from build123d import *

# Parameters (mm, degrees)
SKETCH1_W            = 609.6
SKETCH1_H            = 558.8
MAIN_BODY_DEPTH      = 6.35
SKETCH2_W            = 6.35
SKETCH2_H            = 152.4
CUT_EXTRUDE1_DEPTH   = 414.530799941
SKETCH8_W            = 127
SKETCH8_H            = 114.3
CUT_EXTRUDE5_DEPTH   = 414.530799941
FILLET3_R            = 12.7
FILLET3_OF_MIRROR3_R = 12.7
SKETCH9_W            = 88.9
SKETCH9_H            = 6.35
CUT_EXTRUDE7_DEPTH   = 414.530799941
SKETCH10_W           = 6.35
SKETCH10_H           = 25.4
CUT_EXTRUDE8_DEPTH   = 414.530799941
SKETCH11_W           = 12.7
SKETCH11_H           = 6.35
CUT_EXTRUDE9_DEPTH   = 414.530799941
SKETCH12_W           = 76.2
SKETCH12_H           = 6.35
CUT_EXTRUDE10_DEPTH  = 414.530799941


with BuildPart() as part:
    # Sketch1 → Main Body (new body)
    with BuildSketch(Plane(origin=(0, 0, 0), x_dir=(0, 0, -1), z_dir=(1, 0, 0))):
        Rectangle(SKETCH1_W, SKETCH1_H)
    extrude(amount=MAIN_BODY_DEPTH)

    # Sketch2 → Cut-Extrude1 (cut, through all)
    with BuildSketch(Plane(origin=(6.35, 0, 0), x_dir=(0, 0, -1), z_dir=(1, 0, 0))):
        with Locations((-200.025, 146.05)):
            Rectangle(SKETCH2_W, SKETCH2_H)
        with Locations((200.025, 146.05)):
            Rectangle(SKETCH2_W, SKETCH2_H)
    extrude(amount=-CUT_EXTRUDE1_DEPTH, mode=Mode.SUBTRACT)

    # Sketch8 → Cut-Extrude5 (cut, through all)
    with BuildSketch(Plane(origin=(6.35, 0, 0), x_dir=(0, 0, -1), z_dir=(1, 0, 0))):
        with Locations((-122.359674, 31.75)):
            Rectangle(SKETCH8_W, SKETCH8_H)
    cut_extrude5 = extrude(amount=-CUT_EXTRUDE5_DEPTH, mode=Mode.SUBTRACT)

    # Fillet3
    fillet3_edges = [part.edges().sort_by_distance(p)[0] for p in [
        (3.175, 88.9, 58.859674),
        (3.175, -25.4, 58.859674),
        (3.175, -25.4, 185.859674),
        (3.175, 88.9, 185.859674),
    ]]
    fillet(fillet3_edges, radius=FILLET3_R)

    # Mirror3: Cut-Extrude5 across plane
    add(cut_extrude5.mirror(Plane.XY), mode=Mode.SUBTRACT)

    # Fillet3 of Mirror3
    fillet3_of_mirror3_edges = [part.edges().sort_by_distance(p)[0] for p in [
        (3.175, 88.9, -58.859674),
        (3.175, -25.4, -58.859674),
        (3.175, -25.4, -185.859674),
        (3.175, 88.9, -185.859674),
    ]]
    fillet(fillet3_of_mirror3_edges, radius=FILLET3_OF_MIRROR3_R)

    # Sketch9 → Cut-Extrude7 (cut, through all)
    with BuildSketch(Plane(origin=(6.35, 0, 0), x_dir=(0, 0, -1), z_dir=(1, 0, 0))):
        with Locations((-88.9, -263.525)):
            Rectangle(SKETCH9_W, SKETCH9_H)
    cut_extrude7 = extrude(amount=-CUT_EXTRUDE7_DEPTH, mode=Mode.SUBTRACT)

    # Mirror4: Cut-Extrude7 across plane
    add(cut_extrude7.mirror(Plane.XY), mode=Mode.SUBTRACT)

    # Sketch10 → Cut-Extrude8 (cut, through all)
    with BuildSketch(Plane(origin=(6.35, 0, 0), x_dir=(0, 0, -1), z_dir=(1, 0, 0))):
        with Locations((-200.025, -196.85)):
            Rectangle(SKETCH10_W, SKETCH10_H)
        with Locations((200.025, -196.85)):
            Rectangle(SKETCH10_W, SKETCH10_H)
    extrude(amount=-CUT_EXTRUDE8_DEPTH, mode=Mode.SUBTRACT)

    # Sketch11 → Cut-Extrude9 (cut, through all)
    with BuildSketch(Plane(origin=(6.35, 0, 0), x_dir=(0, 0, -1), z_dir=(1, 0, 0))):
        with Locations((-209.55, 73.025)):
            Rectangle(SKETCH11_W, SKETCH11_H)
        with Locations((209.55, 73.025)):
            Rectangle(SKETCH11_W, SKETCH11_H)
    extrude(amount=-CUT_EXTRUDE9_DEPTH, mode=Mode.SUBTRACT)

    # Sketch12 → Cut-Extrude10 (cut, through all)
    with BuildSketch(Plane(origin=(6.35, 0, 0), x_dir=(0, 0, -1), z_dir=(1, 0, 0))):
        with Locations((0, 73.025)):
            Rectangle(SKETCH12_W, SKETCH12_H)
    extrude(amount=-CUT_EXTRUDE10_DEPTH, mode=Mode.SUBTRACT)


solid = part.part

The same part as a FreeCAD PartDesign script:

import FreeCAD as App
import Part
import Sketcher
Q = App.Units.Quantity


def edges_at(feature, points):
    """Names of the edges that pass closest to the given points."""
    edges = feature.Shape.Edges
    near = lambda p: min(range(len(edges)), key=lambda i: edges[i].distToShape(Part.Vertex(*p))[0])
    return sorted({f"Edge{near(p) + 1}" for p in points})


def add_polygon(sketch, points):
    """Adds a closed chain of lines whose ends are joined by coincident constraints."""
    first, n = sketch.GeometryCount, len(points)
    for a, b in zip(points, points[1:] + points[:1]):
        sketch.addGeometry(Part.LineSegment(App.Vector(*a, 0), App.Vector(*b, 0)), False)
    for i in range(n):
        sketch.addConstraint(Sketcher.Constraint("Coincident", first + i, 2, first + (i + 1) % n, 1))

doc = App.newDocument("Part")
params = doc.addObject("Spreadsheet::Sheet", "Params")
for row, (alias, value) in enumerate([
    ("sketch1_width", "22 in"),
    ("sketch1_height", "24 in"),
    ("pad1_length", "0.25 in"),
    ("sketch2_width", "6 in"),
    ("sketch2_height", "0.25 in"),
    ("sketch3_height", "5 in"),
    ("sketch3_width", "4.5 in"),
    ("fillet_radius", "0.5 in"),
    ("fillet2_radius", "0.5 in"),
    ("sketch4_height", "3.5 in"),
    ("sketch4_width", "0.25 in"),
    ("sketch5_width", "1 in"),
    ("sketch5_height", "0.25 in"),
    ("sketch6_height", "0.5 in"),
    ("sketch6_width", "0.25 in"),
    ("sketch7_height", "3 in"),
    ("sketch7_width", "0.25 in"),
], start=1):
    params.set(f"A{row}", alias)
    params.set(f"B{row}", "=" + value)
    params.setAlias(f"B{row}", alias)

body = doc.addObject("PartDesign::Body", "Body")

# Sketch on YZ plane
sketch1 = body.newObject("Sketcher::SketchObject", "Sketch")
sketch1.AttachmentSupport = (doc.getObject("YZ_Plane"), [""])
sketch1.MapMode = "FlatFace"
add_polygon(sketch1, [(279, 305), (-279, 305), (-279, -305), (279, -305)])  # lines 0-3
sketch1.addConstraint([
    Sketcher.Constraint("Horizontal", 0),
    Sketcher.Constraint("Vertical", 1),
    Sketcher.Constraint("Horizontal", 2),
    Sketcher.Constraint("Vertical", 3),
    Sketcher.Constraint("Symmetric", 0, 2, 2, 2, -1, 1),
    Sketcher.Constraint("DistanceX", 0, 2, 0, 1, Q("22 in")),
    Sketcher.Constraint("DistanceY", 1, 2, 1, 1, Q("24 in")),
])
sketch1.setExpression("Constraints[9]", "Params.sketch1_width")
sketch1.setExpression("Constraints[10]", "Params.sketch1_height")
pad1 = body.newObject("PartDesign::Pad", "Pad")
pad1.Profile = sketch1
pad1.setExpression("Length", "Params.pad1_length")

# Sketch on YZ plane
sketch2 = body.newObject("Sketcher::SketchObject", "Sketch001")
sketch2.AttachmentSupport = (doc.getObject("YZ_Plane"), [""])
sketch2.MapMode = "FlatFace"
sketch2.AttachmentOffset = App.Placement(App.Vector(0, 0, 0.25 * 25.4), App.Rotation())
add_polygon(sketch2, [(222, 203), (70, 203), (70, 197), (222, 197)])  # lines 0-3
add_polygon(sketch2, [(222, -197), (70, -197), (70, -203), (222, -203)])  # lines 4-7
sketch2.addConstraint([
    Sketcher.Constraint("Horizontal", 0),
    Sketcher.Constraint("Vertical", 1),
    Sketcher.Constraint("Horizontal", 2),
    Sketcher.Constraint("Vertical", 3),
    Sketcher.Constraint("Horizontal", 4),
    Sketcher.Constraint("Vertical", 5),
    Sketcher.Constraint("Horizontal", 6),
    Sketcher.Constraint("Vertical", 7),
    Sketcher.Constraint("Symmetric", 1, 2, 4, 2, -1),
    Sketcher.Constraint("Symmetric", 3, 2, 6, 2, -1),
    Sketcher.Constraint("DistanceX", 0, 2, 0, 1, Q("6 in")),
    Sketcher.Constraint("DistanceY", -1, 1, 0, 2, Q("8 in")),
    Sketcher.Constraint("DistanceY", 1, 2, 1, 1, Q("0.25 in")),
    Sketcher.Constraint("DistanceX", -1, 1, 0, 2, Q("2.75 in")),
])
sketch2.setExpression("Constraints[18]", "Params.sketch2_width")
sketch2.setExpression("Constraints[20]", "Params.sketch2_height")
pocket1 = body.newObject("PartDesign::Pocket", "Pocket")
pocket1.Profile = sketch2
pocket1.Type = "ThroughAll"

# Sketch on YZ plane
sketch3 = body.newObject("Sketcher::SketchObject", "Sketch002")
sketch3.AttachmentSupport = (doc.getObject("YZ_Plane"), [""])
sketch3.MapMode = "FlatFace"
sketch3.AttachmentOffset = App.Placement(App.Vector(0, 0, 0.25 * 25.4), App.Rotation())
add_polygon(sketch3, [(89, 186), (-25, 186), (-25, 59), (89, 59)])  # lines 0-3
sketch3.addConstraint([
    Sketcher.Constraint("Horizontal", 0),
    Sketcher.Constraint("Vertical", 1),
    Sketcher.Constraint("Horizontal", 2),
    Sketcher.Constraint("Vertical", 3),
    Sketcher.Constraint("DistanceY", 1, 2, 1, 1, Q("5 in")),
    Sketcher.Constraint("DistanceX", 0, 2, 0, 1, Q("4.5 in")),
    Sketcher.Constraint("DistanceX", 0, 2, -1, 1, Q("1 in")),
    Sketcher.Constraint("DistanceY", -1, 1, 0, 2, Q("185.859674 mm")),
])
sketch3.setExpression("Constraints[8]", "Params.sketch3_height")
sketch3.setExpression("Constraints[9]", "Params.sketch3_width")
pocket2 = body.newObject("PartDesign::Pocket", "Pocket001")
pocket2.Profile = sketch3
pocket2.Type = "ThroughAll"
doc.recompute()

fillet = body.newObject("PartDesign::Fillet", "Fillet")
fillet.Base = (pocket2, edges_at(pocket2, [
    (3.175, 88.9, 58.86),
    (3.175, -25.4, 58.86),
    (3.175, -25.4, 185.86),
    (3.175, 88.9, 185.86),
]))
fillet.setExpression("Radius", "Params.fillet_radius")
doc.recompute()

mirrored = body.newObject("PartDesign::Mirrored", "Mirrored")
mirrored.Originals = [pocket2]
mirrored.MirrorPlane = (doc.getObject("XY_Plane"), [""])
body.Tip = mirrored
doc.recompute()

fillet2 = body.newObject("PartDesign::Fillet", "Fillet001")
fillet2.Base = (mirrored, edges_at(mirrored, [
    (3.175, 88.9, -58.86),
    (3.175, -25.4, -58.86),
    (3.175, -25.4, -185.86),
    (3.175, 88.9, -185.86),
]))
fillet2.setExpression("Radius", "Params.fillet2_radius")

# Sketch on YZ plane
sketch4 = body.newObject("Sketcher::SketchObject", "Sketch003")
sketch4.AttachmentSupport = (doc.getObject("YZ_Plane"), [""])
sketch4.MapMode = "FlatFace"
sketch4.AttachmentOffset = App.Placement(App.Vector(0, 0, 0.25 * 25.4), App.Rotation())
add_polygon(sketch4, [(-260, 133), (-267, 133), (-267, 44), (-260, 44)])  # lines 0-3
sketch4.addConstraint([
    Sketcher.Constraint("Horizontal", 0),
    Sketcher.Constraint("Vertical", 1),
    Sketcher.Constraint("Horizontal", 2),
    Sketcher.Constraint("Vertical", 3),
    Sketcher.Constraint("DistanceY", 1, 2, 1, 1, Q("3.5 in")),
    Sketcher.Constraint("DistanceX", 0, 2, 0, 1, Q("0.25 in")),
    Sketcher.Constraint("DistanceX", 0, 2, -1, 1, Q("10.5 in")),
    Sketcher.Constraint("DistanceY", -1, 1, 0, 2, Q("5.25 in")),
])
sketch4.setExpression("Constraints[8]", "Params.sketch4_height")
sketch4.setExpression("Constraints[9]", "Params.sketch4_width")
pocket3 = body.newObject("PartDesign::Pocket", "Pocket002")
pocket3.Profile = sketch4
pocket3.Type = "ThroughAll"
doc.recompute()

mirrored2 = body.newObject("PartDesign::Mirrored", "Mirrored001")
mirrored2.Originals = [pocket3]
mirrored2.MirrorPlane = (doc.getObject("XY_Plane"), [""])
body.Tip = mirrored2

# Sketch on YZ plane
sketch5 = body.newObject("Sketcher::SketchObject", "Sketch004")
sketch5.AttachmentSupport = (doc.getObject("YZ_Plane"), [""])
sketch5.MapMode = "FlatFace"
sketch5.AttachmentOffset = App.Placement(App.Vector(0, 0, 0.25 * 25.4), App.Rotation())
add_polygon(sketch5, [(-184, 203), (-210, 203), (-210, 197), (-184, 197)])  # lines 0-3
add_polygon(sketch5, [(-184, -197), (-210, -197), (-210, -203), (-184, -203)])  # lines 4-7
sketch5.addConstraint([
    Sketcher.Constraint("Horizontal", 0),
    Sketcher.Constraint("Vertical", 1),
    Sketcher.Constraint("Horizontal", 2),
    Sketcher.Constraint("Vertical", 3),
    Sketcher.Constraint("Horizontal", 4),
    Sketcher.Constraint("Vertical", 5),
    Sketcher.Constraint("Horizontal", 6),
    Sketcher.Constraint("Vertical", 7),
    Sketcher.Constraint("Symmetric", 1, 2, 4, 2, -1),
    Sketcher.Constraint("Symmetric", 3, 2, 6, 2, -1),
    Sketcher.Constraint("DistanceX", 0, 2, 0, 1, Q("1 in")),
    Sketcher.Constraint("DistanceY", -1, 1, 0, 2, Q("8 in")),
    Sketcher.Constraint("DistanceY", 1, 2, 1, 1, Q("0.25 in")),
    Sketcher.Constraint("DistanceX", 0, 2, -1, 1, Q("8.25 in")),
])
sketch5.setExpression("Constraints[18]", "Params.sketch5_width")
sketch5.setExpression("Constraints[20]", "Params.sketch5_height")
pocket4 = body.newObject("PartDesign::Pocket", "Pocket003")
pocket4.Profile = sketch5
pocket4.Type = "ThroughAll"

# Sketch on YZ plane
sketch6 = body.newObject("Sketcher::SketchObject", "Sketch005")
sketch6.AttachmentSupport = (doc.getObject("YZ_Plane"), [""])
sketch6.MapMode = "FlatFace"
sketch6.AttachmentOffset = App.Placement(App.Vector(0, 0, 0.25 * 25.4), App.Rotation())
add_polygon(sketch6, [(76, 216), (70, 216), (70, 203), (76, 203)])  # lines 0-3
add_polygon(sketch6, [(76, -203), (70, -203), (70, -216), (76, -216)])  # lines 4-7
sketch6.addConstraint([
    Sketcher.Constraint("Horizontal", 0),
    Sketcher.Constraint("Vertical", 1),
    Sketcher.Constraint("Horizontal", 2),
    Sketcher.Constraint("Vertical", 3),
    Sketcher.Constraint("Horizontal", 4),
    Sketcher.Constraint("Vertical", 5),
    Sketcher.Constraint("Horizontal", 6),
    Sketcher.Constraint("Vertical", 7),
    Sketcher.Constraint("Symmetric", 1, 2, 4, 2, -1),
    Sketcher.Constraint("Symmetric", 3, 2, 6, 2, -1),
    Sketcher.Constraint("DistanceY", 1, 2, 1, 1, Q("0.5 in")),
    Sketcher.Constraint("DistanceY", -1, 1, 1, 2, Q("8 in")),
    Sketcher.Constraint("DistanceX", -1, 1, 2, 2, Q("3 in")),
    Sketcher.Constraint("DistanceX", 0, 2, 0, 1, Q("0.25 in")),
])
sketch6.setExpression("Constraints[18]", "Params.sketch6_height")
sketch6.setExpression("Constraints[21]", "Params.sketch6_width")
pocket5 = body.newObject("PartDesign::Pocket", "Pocket004")
pocket5.Profile = sketch6
pocket5.Type = "ThroughAll"

# Sketch on YZ plane
sketch7 = body.newObject("Sketcher::SketchObject", "Sketch006")
sketch7.AttachmentSupport = (doc.getObject("YZ_Plane"), [""])
sketch7.MapMode = "FlatFace"
sketch7.AttachmentOffset = App.Placement(App.Vector(0, 0, 0.25 * 25.4), App.Rotation())
add_polygon(sketch7, [(76, 38), (70, 38), (70, -38), (76, -38)])  # lines 0-3
sketch7.addConstraint([
    Sketcher.Constraint("Horizontal", 0),
    Sketcher.Constraint("Vertical", 1),
    Sketcher.Constraint("Horizontal", 2),
    Sketcher.Constraint("Vertical", 3),
    Sketcher.Constraint("DistanceY", 1, 2, 1, 1, Q("3 in")),
    Sketcher.Constraint("DistanceX", -1, 1, 2, 2, Q("3 in")),
    Sketcher.Constraint("DistanceX", 0, 2, 0, 1, Q("0.25 in")),
    Sketcher.Constraint("DistanceY", -1, 1, 0, 2, Q("1.5 in")),
])
sketch7.setExpression("Constraints[8]", "Params.sketch7_height")
sketch7.setExpression("Constraints[10]", "Params.sketch7_width")
pocket6 = body.newObject("PartDesign::Pocket", "Pocket005")
pocket6.Profile = sketch7
pocket6.Type = "ThroughAll"

doc.recompute()
